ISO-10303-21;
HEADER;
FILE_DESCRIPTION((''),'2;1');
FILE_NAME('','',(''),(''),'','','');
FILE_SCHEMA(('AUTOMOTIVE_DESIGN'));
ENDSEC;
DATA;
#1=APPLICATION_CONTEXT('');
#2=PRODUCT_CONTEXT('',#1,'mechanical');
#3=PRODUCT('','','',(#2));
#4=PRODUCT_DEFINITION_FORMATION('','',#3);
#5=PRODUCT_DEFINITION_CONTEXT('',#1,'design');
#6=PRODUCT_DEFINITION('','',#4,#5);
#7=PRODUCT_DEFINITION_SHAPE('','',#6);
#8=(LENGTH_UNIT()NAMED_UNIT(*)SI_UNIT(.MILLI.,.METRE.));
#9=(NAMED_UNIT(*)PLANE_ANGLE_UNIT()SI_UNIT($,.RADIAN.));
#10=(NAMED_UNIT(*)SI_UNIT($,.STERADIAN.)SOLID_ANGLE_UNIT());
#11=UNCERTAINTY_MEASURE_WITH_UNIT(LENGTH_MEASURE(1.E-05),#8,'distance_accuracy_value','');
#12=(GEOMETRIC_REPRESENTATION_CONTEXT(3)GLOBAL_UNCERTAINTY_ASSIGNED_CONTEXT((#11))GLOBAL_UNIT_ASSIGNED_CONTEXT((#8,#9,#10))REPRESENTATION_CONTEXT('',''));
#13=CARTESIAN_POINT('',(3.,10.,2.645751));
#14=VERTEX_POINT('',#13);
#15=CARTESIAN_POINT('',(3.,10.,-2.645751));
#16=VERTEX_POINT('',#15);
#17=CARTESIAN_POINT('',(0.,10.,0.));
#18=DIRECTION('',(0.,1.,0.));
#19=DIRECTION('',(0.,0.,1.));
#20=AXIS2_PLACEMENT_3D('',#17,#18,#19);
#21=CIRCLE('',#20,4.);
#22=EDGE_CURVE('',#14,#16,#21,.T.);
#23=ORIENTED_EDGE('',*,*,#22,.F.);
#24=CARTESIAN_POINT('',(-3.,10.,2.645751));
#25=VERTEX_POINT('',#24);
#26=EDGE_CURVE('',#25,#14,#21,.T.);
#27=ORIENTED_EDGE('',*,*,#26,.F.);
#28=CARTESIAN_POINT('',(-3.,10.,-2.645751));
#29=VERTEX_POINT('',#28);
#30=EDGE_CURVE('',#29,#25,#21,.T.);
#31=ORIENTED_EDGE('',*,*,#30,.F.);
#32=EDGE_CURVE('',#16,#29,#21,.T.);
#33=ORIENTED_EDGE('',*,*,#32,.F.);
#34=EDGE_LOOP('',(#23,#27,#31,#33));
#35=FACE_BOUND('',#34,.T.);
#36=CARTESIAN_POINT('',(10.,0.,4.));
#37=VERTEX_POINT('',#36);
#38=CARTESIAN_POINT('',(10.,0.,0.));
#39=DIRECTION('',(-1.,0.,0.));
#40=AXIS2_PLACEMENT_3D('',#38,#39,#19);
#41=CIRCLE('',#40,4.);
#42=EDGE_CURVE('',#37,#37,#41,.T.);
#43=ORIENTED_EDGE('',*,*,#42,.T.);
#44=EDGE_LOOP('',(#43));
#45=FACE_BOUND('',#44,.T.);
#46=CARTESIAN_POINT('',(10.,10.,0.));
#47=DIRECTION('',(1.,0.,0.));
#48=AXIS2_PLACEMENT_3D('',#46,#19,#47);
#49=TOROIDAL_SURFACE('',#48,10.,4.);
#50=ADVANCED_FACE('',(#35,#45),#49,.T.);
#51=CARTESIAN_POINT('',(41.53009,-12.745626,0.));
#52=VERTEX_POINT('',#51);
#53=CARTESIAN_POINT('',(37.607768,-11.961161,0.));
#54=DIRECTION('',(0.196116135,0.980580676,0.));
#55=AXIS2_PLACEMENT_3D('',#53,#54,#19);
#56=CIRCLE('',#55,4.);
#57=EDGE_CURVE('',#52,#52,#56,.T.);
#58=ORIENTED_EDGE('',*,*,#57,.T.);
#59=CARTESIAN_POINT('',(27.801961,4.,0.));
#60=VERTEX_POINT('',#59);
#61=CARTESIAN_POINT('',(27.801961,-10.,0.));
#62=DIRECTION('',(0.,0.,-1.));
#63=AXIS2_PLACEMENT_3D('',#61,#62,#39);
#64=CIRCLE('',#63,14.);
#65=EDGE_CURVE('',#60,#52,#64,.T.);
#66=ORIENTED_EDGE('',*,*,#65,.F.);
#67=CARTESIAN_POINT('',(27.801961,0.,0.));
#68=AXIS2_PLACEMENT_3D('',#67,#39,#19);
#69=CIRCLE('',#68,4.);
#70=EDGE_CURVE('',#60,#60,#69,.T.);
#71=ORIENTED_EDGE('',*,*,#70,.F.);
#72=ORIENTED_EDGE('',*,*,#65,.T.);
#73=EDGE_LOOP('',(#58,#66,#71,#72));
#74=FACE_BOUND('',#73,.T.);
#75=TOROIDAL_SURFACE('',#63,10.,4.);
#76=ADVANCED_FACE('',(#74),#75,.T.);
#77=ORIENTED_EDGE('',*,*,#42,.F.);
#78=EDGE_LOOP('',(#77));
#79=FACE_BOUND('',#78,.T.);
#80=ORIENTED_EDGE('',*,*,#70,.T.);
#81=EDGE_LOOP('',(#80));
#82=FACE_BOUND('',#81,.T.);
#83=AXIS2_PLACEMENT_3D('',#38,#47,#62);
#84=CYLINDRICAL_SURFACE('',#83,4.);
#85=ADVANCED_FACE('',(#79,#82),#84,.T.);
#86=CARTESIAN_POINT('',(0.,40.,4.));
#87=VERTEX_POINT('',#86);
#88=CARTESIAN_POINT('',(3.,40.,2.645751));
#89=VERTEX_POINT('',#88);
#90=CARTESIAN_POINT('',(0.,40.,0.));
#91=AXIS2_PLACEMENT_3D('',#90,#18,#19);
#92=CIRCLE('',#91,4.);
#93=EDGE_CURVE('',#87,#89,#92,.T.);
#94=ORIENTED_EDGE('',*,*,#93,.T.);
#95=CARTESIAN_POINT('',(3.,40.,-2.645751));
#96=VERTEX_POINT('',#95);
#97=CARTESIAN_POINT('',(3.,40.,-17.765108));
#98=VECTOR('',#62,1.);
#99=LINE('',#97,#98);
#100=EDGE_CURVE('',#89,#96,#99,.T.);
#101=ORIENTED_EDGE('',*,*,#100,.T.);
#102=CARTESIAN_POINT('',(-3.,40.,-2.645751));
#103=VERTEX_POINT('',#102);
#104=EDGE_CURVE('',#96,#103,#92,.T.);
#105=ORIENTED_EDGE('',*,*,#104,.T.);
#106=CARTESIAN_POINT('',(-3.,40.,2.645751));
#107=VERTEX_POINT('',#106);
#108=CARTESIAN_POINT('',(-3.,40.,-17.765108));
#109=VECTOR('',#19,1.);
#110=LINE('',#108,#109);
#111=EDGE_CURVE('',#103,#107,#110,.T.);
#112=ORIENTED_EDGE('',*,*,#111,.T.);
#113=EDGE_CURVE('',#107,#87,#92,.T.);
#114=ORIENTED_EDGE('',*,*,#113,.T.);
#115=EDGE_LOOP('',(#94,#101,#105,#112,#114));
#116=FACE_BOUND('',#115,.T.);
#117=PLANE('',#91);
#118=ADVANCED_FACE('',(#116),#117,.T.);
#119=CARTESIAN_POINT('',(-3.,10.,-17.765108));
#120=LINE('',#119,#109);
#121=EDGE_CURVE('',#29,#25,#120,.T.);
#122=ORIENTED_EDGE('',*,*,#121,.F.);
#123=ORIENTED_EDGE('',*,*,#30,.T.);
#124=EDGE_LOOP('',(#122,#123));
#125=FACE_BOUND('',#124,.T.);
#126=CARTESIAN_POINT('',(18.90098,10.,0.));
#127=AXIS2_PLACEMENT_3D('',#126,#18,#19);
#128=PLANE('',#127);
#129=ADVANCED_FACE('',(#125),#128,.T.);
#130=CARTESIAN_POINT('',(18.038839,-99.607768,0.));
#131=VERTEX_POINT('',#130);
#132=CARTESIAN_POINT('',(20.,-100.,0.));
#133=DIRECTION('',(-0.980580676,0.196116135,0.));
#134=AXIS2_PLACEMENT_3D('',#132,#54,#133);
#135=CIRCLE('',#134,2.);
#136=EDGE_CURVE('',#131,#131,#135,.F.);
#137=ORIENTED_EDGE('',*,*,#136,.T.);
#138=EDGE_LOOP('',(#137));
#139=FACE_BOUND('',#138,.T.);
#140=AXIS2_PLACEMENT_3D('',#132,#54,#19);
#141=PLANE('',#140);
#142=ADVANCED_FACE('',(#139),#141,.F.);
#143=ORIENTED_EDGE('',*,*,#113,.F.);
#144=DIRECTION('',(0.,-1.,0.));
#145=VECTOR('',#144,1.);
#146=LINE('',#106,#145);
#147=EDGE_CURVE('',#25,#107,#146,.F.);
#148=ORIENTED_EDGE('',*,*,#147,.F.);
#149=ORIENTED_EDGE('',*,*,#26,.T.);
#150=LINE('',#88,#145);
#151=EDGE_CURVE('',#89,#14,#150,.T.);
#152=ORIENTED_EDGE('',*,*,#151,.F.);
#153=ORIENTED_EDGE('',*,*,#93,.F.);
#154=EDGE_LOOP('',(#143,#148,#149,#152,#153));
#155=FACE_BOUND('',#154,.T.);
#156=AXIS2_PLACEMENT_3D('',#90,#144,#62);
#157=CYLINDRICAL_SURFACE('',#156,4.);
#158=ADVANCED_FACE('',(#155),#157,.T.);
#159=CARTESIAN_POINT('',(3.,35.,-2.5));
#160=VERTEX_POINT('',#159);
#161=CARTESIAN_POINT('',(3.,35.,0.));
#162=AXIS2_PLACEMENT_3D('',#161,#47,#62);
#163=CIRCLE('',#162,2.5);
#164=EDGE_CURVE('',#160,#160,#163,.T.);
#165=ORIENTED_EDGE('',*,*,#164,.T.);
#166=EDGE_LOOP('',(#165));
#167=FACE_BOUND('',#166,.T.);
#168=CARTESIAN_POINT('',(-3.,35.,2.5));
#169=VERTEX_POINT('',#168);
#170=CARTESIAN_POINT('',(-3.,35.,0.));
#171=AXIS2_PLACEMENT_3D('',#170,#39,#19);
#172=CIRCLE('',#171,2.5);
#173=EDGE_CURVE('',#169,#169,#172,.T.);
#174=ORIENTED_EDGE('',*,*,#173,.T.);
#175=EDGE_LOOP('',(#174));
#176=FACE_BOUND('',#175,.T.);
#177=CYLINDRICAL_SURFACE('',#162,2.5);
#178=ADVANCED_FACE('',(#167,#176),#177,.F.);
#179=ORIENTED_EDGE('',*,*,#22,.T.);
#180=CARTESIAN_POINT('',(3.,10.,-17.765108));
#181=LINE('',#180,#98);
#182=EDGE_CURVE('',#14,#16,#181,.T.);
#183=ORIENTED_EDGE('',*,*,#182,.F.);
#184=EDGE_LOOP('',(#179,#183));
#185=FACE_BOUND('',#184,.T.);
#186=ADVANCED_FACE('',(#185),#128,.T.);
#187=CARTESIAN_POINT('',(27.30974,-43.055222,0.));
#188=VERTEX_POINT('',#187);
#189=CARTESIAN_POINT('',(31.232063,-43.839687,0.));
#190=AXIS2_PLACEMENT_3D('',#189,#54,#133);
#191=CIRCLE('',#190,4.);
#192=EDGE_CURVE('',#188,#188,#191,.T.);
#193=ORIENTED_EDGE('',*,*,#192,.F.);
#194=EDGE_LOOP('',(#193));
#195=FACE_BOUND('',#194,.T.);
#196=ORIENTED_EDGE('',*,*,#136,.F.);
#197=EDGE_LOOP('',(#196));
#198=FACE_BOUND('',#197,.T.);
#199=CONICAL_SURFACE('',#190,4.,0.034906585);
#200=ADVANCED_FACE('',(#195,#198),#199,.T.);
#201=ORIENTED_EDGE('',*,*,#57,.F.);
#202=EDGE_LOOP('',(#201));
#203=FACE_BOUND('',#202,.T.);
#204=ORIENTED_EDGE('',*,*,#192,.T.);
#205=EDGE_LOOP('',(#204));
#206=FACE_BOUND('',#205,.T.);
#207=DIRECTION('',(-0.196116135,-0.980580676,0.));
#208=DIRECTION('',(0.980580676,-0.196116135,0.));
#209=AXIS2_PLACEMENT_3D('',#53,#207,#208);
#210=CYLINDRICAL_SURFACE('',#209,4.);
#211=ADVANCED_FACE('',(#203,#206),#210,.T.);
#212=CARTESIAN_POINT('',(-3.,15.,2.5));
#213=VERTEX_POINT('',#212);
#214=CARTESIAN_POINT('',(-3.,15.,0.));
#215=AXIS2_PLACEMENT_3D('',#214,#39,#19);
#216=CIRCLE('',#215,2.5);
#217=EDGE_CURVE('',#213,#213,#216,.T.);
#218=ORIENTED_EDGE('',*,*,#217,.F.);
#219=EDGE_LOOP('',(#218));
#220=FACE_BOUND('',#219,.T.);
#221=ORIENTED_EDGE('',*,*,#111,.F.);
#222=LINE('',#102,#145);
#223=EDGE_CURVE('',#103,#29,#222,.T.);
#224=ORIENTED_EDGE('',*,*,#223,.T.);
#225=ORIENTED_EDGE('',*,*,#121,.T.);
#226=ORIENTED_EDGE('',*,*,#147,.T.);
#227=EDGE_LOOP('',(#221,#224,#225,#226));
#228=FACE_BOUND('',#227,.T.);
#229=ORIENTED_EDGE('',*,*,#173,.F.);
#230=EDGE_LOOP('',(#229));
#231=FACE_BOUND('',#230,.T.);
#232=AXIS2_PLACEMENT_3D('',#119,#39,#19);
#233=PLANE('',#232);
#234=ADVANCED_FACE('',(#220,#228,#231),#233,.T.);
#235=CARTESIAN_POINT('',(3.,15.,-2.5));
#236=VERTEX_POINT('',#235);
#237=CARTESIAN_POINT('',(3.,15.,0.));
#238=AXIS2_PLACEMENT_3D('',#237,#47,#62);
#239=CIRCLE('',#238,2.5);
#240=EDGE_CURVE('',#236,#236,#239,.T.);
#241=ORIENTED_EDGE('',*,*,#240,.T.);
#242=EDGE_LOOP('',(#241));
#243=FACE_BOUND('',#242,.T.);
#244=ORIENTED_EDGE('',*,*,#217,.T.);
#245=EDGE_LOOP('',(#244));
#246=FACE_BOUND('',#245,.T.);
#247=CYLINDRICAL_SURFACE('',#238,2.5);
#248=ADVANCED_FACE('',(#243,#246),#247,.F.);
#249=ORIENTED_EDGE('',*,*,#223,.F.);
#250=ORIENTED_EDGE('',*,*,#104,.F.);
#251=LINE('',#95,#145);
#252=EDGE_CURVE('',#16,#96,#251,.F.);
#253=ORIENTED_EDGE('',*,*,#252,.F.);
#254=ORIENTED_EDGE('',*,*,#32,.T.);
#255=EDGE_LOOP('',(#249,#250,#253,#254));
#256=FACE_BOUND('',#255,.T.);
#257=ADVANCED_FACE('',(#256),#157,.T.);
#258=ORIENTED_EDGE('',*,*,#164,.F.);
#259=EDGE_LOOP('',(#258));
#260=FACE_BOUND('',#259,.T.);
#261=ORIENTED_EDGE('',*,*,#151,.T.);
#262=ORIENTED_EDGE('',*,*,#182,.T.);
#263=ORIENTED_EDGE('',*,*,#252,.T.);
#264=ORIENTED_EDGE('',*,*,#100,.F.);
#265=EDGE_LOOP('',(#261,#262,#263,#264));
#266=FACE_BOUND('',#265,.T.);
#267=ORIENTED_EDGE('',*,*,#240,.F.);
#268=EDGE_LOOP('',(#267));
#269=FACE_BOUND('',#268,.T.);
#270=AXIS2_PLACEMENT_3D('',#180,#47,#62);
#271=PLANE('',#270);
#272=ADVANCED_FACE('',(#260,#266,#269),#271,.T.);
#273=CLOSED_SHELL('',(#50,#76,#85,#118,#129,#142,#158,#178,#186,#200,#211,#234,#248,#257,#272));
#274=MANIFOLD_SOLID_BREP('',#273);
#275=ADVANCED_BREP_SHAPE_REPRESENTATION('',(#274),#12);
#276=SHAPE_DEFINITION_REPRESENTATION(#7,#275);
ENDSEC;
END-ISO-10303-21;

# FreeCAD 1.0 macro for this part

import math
import FreeCAD as App
import Part
import Sketcher
from FreeCAD import Vector
Q = App.Units.Quantity


def edges_at(feature, points):
    """Names of the edges that pass closest to the given points."""
    edges = feature.Shape.Edges
    near = lambda p: min(range(len(edges)), key=lambda i: edges[i].distToShape(Part.Vertex(*p))[0])
    return sorted({f"Edge{near(p) + 1}" for p in points})

doc = App.newDocument("Part")
body = doc.addObject("PartDesign::Body", "Body")

# Sketch on XZ plane
sketch1 = body.newObject("Sketcher::SketchObject", "Sketch")
sketch1.AttachmentSupport = (doc.getObject("XZ_Plane"), [""])
sketch1.MapMode = "FlatFace"
sketch1.AttachmentOffset = App.Placement(Vector(0, 0, -40), App.Rotation())
sketch1.addGeometry(Part.Circle(Vector(0, 0, 0), Vector(0, 0, 1), 4), False)
sketch1.addConstraint([
    Sketcher.Constraint("Coincident", 0, 3, -1, 1),
    Sketcher.Constraint("Diameter", 0, Q("8 mm")),
])

# Sketch on XY plane
sketch2 = body.newObject("Sketcher::SketchObject", "Sketch001")
sketch2.AttachmentSupport = (doc.getObject("XY_Plane"), [""])
sketch2.MapMode = "FlatFace"
sketch2.addGeometry([
    Part.LineSegment(Vector(0, 40, 0), Vector(0, 10, 0)),  # 0
    Part.ArcOfCircle(Part.Circle(Vector(10, 10, 0), Vector(0, 0, 1), 10), math.radians(180), math.radians(270)),  # 1
    Part.LineSegment(Vector(10, 0, 0), Vector(28, 0, 0)),  # 2
    Part.ArcOfCircle(Part.Circle(Vector(28, -10, 0), Vector(0, 0, 1), 10), math.radians(-11), math.radians(90)),  # 3
    Part.LineSegment(Vector(38, -12, 0), Vector(20, -100, 0)),  # 4
], False)
sketch2.addConstraint([
    Sketcher.Constraint("Tangent", 0, 2, 1, 1),
    Sketcher.Constraint("Tangent", 1, 2, 2, 1),
    Sketcher.Constraint("Tangent", 2, 2, 3, 2),
    Sketcher.Constraint("Tangent", 3, 1, 4, 1),
    Sketcher.Constraint("Vertical", 0),
    Sketcher.Constraint("Horizontal", 2),
    Sketcher.Constraint("Equal", 1, 3),
    Sketcher.Constraint("PointOnObject", 0, 1, -2),
    Sketcher.Constraint("PointOnObject", 1, 2, -1),
    Sketcher.Constraint("Radius", 1, Q("10 mm")),
    Sketcher.Constraint("DistanceY", 0, 2, 0, 1, Q("30 mm")),
    Sketcher.Constraint("DistanceX", -1, 1, 4, 2, Q("20 mm")),
    Sketcher.Constraint("DistanceY", 4, 2, -1, 1, Q("100 mm")),
    Sketcher.Constraint("DistanceX", 2, 1, 2, 2, Q("17.801961 mm")),
])
doc.recompute()

additivepipe = body.newObject("PartDesign::AdditivePipe", "AdditivePipe")
additivepipe.Profile = sketch1
additivepipe.Spine = (sketch2, ["Edge1", "Edge2", "Edge3", "Edge4", "Edge5"])
doc.recompute()

chamfer = body.newObject("PartDesign::Chamfer", "Chamfer")
chamfer.Base = (additivepipe, edges_at(additivepipe, [(16.078, -99.216, 0)]))
chamfer.ChamferType = "Two distances"
chamfer.Size = 2
chamfer.Size2 = 57.272507
chamfer.FlipDirection = True

# Sketch on XZ plane
sketch3 = body.newObject("Sketcher::SketchObject", "Sketch002")
sketch3.AttachmentSupport = (doc.getObject("XZ_Plane"), [""])
sketch3.MapMode = "FlatFace"
sketch3.AttachmentOffset = App.Placement(Vector(0, 0, -40), App.Rotation())
sketch3.addGeometry([
    Part.LineSegment(Vector(-20, -20, 0), Vector(-20, 20, 0)),  # 0
    Part.LineSegment(Vector(-20, 20, 0), Vector(58, 20, 0)),  # 1
    Part.LineSegment(Vector(58, 20, 0), Vector(58, -20, 0)),  # 2
    Part.LineSegment(Vector(58, -20, 0), Vector(-20, -20, 0)),  # 3
    Part.LineSegment(Vector(3, 18, 0), Vector(-3, 18, 0)),  # 4
    Part.LineSegment(Vector(-3, 18, 0), Vector(-3, -18, 0)),  # 5
    Part.LineSegment(Vector(-3, -18, 0), Vector(3, -18, 0)),  # 6
    Part.LineSegment(Vector(3, -18, 0), Vector(3, 18, 0)),  # 7
], False)
sketch3.addConstraint([
    Sketcher.Constraint("Coincident", 0, 2, 1, 1),
    Sketcher.Constraint("Coincident", 1, 2, 2, 1),
    Sketcher.Constraint("Coincident", 2, 2, 3, 1),
    Sketcher.Constraint("Coincident", 3, 2, 0, 1),
    Sketcher.Constraint("Coincident", 4, 2, 5, 1),
    Sketcher.Constraint("Coincident", 5, 2, 6, 1),
    Sketcher.Constraint("Coincident", 6, 2, 7, 1),
    Sketcher.Constraint("Coincident", 7, 2, 4, 1),
    Sketcher.Constraint("Vertical", 0),
    Sketcher.Constraint("Horizontal", 1),
    Sketcher.Constraint("Vertical", 2),
    Sketcher.Constraint("Horizontal", 3),
    Sketcher.Constraint("Horizontal", 4),
    Sketcher.Constraint("Vertical", 5),
    Sketcher.Constraint("Horizontal", 6),
    Sketcher.Constraint("Vertical", 7),
    Sketcher.Constraint("Symmetric", 4, 2, 6, 2, -1, 1),
    Sketcher.Constraint("DistanceX", 4, 2, 4, 1, Q("6 mm")),
    Sketcher.Constraint("DistanceX", 1, 1, 1, 2, Q("77.38 mm")),
    Sketcher.Constraint("DistanceY", 0, 1, 0, 2, Q("39.578 mm")),
    Sketcher.Constraint("DistanceX", 0, 2, -1, 1, Q("19.789 mm")),
    Sketcher.Constraint("DistanceY", -1, 1, 0, 2, Q("19.789 mm")),
    Sketcher.Constraint("DistanceY", 5, 2, 5, 1, Q("35.530215 mm")),
])
pocket1 = body.newObject("PartDesign::Pocket", "Pocket")
pocket1.Profile = sketch3
pocket1.Length = 30
pocket1.Reversed = True

# Sketch on YZ plane
sketch4 = body.newObject("Sketcher::SketchObject", "Sketch003")
sketch4.AttachmentSupport = (doc.getObject("YZ_Plane"), [""])
sketch4.MapMode = "FlatFace"
sketch4.AttachmentOffset = App.Placement(Vector(0, 0, 3), App.Rotation())
sketch4.addGeometry([
    Part.Circle(Vector(35, 0, 0), Vector(0, 0, 1), 2.5),
    Part.Circle(Vector(15, 0, 0), Vector(0, 0, 1), 2.5),
], False)
sketch4.addConstraint([
    Sketcher.Constraint("Equal", 0, 1),
    Sketcher.Constraint("PointOnObject", 0, 3, -1),
    Sketcher.Constraint("PointOnObject", 1, 3, -1),
    Sketcher.Constraint("Diameter", 0, Q("5 mm")),
    Sketcher.Constraint("DistanceX", -1, 1, 0, 3, Q("35 mm")),
    Sketcher.Constraint("DistanceX", -1, 1, 1, 3, Q("15 mm")),
])
doc.recompute()
hole = body.newObject("PartDesign::Hole", "Hole")
hole.Profile = sketch4
hole.ThreadType = "None"
hole.Diameter = 5
hole.DepthType = "Dimension"
hole.Depth = 9
hole.DrillPoint = "Angled"
hole.DrillPointAngle = 118

doc.recompute()
